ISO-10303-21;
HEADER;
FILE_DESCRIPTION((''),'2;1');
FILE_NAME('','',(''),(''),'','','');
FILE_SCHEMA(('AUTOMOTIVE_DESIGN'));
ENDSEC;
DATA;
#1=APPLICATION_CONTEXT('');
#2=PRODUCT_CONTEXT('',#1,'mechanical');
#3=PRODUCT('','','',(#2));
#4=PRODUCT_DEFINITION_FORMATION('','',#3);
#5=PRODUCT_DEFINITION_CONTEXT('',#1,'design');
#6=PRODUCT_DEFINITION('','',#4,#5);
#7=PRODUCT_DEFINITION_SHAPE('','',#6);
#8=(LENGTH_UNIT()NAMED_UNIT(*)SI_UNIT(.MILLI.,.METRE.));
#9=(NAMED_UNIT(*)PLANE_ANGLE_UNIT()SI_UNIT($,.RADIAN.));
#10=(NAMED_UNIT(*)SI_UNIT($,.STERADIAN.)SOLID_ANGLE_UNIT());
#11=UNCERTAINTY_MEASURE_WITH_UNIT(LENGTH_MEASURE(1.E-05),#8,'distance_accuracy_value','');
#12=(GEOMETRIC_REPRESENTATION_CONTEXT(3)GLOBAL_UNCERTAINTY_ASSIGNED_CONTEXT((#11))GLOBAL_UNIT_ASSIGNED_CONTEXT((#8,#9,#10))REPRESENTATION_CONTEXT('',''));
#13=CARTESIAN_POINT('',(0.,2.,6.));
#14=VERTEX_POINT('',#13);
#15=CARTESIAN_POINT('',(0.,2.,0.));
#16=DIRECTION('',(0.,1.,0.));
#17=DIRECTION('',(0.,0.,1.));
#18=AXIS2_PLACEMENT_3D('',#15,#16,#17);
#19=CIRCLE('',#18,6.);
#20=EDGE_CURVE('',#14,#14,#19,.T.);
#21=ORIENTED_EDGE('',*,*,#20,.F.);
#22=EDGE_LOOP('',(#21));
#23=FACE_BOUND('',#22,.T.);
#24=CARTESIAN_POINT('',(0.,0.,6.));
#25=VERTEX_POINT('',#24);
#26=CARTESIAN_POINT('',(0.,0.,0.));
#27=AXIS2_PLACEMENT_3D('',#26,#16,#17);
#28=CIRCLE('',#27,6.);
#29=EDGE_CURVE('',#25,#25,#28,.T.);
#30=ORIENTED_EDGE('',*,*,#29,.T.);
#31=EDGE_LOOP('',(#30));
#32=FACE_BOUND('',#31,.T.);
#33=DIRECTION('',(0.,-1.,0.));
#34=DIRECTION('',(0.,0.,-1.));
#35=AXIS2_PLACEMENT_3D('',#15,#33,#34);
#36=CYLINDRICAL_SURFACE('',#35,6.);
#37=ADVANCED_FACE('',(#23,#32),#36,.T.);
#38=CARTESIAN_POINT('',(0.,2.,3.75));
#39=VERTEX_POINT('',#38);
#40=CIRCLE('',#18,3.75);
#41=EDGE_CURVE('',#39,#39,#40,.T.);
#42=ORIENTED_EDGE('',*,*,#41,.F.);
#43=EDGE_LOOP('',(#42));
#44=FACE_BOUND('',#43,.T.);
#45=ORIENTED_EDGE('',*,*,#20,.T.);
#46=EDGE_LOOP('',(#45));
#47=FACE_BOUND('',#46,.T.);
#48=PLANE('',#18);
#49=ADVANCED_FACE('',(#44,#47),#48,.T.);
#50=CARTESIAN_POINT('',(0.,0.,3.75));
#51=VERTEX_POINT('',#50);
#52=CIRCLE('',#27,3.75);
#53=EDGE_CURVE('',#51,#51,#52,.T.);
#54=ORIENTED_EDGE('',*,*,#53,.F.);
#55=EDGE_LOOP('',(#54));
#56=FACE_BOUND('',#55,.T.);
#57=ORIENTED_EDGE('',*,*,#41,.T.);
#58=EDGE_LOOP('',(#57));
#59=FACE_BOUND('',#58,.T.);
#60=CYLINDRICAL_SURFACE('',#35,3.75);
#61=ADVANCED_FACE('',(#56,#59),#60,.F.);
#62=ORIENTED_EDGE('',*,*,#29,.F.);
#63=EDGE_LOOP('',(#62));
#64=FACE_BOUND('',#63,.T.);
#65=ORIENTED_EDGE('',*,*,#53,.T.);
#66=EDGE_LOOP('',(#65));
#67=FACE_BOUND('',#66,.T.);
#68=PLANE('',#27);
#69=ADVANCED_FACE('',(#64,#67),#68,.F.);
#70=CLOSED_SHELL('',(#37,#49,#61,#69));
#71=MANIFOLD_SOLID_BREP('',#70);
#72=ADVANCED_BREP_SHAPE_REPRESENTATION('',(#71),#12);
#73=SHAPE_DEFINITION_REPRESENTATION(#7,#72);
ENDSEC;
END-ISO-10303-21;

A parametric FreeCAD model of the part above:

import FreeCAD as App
import Part
import Sketcher
Q = App.Units.Quantity

doc = App.newDocument("Part")
body = doc.addObject("PartDesign::Body", "Body")

# Sketch on XZ plane
sketch1 = body.newObject("Sketcher::SketchObject", "Sketch")
sketch1.AttachmentSupport = (doc.getObject("XZ_Plane"), [""])
sketch1.MapMode = "FlatFace"
sketch1.addGeometry([
    Part.Circle(App.Vector(0, 0, 0), App.Vector(0, 0, 1), 6),
    Part.Circle(App.Vector(0, 0, 0), App.Vector(0, 0, 1), 3.75),
], False)
sketch1.addConstraint([
    Sketcher.Constraint("Coincident", 0, 3, -1, 1),
    Sketcher.Constraint("Coincident", 1, 3, -1, 1),
    Sketcher.Constraint("Diameter", 0, Q("12 mm")),
    Sketcher.Constraint("Diameter", 1, Q("7.5 mm")),
])
pad1 = body.newObject("PartDesign::Pad", "Pad")
pad1.Profile = sketch1
pad1.Length = 2
pad1.Reversed = True

doc.recompute()
